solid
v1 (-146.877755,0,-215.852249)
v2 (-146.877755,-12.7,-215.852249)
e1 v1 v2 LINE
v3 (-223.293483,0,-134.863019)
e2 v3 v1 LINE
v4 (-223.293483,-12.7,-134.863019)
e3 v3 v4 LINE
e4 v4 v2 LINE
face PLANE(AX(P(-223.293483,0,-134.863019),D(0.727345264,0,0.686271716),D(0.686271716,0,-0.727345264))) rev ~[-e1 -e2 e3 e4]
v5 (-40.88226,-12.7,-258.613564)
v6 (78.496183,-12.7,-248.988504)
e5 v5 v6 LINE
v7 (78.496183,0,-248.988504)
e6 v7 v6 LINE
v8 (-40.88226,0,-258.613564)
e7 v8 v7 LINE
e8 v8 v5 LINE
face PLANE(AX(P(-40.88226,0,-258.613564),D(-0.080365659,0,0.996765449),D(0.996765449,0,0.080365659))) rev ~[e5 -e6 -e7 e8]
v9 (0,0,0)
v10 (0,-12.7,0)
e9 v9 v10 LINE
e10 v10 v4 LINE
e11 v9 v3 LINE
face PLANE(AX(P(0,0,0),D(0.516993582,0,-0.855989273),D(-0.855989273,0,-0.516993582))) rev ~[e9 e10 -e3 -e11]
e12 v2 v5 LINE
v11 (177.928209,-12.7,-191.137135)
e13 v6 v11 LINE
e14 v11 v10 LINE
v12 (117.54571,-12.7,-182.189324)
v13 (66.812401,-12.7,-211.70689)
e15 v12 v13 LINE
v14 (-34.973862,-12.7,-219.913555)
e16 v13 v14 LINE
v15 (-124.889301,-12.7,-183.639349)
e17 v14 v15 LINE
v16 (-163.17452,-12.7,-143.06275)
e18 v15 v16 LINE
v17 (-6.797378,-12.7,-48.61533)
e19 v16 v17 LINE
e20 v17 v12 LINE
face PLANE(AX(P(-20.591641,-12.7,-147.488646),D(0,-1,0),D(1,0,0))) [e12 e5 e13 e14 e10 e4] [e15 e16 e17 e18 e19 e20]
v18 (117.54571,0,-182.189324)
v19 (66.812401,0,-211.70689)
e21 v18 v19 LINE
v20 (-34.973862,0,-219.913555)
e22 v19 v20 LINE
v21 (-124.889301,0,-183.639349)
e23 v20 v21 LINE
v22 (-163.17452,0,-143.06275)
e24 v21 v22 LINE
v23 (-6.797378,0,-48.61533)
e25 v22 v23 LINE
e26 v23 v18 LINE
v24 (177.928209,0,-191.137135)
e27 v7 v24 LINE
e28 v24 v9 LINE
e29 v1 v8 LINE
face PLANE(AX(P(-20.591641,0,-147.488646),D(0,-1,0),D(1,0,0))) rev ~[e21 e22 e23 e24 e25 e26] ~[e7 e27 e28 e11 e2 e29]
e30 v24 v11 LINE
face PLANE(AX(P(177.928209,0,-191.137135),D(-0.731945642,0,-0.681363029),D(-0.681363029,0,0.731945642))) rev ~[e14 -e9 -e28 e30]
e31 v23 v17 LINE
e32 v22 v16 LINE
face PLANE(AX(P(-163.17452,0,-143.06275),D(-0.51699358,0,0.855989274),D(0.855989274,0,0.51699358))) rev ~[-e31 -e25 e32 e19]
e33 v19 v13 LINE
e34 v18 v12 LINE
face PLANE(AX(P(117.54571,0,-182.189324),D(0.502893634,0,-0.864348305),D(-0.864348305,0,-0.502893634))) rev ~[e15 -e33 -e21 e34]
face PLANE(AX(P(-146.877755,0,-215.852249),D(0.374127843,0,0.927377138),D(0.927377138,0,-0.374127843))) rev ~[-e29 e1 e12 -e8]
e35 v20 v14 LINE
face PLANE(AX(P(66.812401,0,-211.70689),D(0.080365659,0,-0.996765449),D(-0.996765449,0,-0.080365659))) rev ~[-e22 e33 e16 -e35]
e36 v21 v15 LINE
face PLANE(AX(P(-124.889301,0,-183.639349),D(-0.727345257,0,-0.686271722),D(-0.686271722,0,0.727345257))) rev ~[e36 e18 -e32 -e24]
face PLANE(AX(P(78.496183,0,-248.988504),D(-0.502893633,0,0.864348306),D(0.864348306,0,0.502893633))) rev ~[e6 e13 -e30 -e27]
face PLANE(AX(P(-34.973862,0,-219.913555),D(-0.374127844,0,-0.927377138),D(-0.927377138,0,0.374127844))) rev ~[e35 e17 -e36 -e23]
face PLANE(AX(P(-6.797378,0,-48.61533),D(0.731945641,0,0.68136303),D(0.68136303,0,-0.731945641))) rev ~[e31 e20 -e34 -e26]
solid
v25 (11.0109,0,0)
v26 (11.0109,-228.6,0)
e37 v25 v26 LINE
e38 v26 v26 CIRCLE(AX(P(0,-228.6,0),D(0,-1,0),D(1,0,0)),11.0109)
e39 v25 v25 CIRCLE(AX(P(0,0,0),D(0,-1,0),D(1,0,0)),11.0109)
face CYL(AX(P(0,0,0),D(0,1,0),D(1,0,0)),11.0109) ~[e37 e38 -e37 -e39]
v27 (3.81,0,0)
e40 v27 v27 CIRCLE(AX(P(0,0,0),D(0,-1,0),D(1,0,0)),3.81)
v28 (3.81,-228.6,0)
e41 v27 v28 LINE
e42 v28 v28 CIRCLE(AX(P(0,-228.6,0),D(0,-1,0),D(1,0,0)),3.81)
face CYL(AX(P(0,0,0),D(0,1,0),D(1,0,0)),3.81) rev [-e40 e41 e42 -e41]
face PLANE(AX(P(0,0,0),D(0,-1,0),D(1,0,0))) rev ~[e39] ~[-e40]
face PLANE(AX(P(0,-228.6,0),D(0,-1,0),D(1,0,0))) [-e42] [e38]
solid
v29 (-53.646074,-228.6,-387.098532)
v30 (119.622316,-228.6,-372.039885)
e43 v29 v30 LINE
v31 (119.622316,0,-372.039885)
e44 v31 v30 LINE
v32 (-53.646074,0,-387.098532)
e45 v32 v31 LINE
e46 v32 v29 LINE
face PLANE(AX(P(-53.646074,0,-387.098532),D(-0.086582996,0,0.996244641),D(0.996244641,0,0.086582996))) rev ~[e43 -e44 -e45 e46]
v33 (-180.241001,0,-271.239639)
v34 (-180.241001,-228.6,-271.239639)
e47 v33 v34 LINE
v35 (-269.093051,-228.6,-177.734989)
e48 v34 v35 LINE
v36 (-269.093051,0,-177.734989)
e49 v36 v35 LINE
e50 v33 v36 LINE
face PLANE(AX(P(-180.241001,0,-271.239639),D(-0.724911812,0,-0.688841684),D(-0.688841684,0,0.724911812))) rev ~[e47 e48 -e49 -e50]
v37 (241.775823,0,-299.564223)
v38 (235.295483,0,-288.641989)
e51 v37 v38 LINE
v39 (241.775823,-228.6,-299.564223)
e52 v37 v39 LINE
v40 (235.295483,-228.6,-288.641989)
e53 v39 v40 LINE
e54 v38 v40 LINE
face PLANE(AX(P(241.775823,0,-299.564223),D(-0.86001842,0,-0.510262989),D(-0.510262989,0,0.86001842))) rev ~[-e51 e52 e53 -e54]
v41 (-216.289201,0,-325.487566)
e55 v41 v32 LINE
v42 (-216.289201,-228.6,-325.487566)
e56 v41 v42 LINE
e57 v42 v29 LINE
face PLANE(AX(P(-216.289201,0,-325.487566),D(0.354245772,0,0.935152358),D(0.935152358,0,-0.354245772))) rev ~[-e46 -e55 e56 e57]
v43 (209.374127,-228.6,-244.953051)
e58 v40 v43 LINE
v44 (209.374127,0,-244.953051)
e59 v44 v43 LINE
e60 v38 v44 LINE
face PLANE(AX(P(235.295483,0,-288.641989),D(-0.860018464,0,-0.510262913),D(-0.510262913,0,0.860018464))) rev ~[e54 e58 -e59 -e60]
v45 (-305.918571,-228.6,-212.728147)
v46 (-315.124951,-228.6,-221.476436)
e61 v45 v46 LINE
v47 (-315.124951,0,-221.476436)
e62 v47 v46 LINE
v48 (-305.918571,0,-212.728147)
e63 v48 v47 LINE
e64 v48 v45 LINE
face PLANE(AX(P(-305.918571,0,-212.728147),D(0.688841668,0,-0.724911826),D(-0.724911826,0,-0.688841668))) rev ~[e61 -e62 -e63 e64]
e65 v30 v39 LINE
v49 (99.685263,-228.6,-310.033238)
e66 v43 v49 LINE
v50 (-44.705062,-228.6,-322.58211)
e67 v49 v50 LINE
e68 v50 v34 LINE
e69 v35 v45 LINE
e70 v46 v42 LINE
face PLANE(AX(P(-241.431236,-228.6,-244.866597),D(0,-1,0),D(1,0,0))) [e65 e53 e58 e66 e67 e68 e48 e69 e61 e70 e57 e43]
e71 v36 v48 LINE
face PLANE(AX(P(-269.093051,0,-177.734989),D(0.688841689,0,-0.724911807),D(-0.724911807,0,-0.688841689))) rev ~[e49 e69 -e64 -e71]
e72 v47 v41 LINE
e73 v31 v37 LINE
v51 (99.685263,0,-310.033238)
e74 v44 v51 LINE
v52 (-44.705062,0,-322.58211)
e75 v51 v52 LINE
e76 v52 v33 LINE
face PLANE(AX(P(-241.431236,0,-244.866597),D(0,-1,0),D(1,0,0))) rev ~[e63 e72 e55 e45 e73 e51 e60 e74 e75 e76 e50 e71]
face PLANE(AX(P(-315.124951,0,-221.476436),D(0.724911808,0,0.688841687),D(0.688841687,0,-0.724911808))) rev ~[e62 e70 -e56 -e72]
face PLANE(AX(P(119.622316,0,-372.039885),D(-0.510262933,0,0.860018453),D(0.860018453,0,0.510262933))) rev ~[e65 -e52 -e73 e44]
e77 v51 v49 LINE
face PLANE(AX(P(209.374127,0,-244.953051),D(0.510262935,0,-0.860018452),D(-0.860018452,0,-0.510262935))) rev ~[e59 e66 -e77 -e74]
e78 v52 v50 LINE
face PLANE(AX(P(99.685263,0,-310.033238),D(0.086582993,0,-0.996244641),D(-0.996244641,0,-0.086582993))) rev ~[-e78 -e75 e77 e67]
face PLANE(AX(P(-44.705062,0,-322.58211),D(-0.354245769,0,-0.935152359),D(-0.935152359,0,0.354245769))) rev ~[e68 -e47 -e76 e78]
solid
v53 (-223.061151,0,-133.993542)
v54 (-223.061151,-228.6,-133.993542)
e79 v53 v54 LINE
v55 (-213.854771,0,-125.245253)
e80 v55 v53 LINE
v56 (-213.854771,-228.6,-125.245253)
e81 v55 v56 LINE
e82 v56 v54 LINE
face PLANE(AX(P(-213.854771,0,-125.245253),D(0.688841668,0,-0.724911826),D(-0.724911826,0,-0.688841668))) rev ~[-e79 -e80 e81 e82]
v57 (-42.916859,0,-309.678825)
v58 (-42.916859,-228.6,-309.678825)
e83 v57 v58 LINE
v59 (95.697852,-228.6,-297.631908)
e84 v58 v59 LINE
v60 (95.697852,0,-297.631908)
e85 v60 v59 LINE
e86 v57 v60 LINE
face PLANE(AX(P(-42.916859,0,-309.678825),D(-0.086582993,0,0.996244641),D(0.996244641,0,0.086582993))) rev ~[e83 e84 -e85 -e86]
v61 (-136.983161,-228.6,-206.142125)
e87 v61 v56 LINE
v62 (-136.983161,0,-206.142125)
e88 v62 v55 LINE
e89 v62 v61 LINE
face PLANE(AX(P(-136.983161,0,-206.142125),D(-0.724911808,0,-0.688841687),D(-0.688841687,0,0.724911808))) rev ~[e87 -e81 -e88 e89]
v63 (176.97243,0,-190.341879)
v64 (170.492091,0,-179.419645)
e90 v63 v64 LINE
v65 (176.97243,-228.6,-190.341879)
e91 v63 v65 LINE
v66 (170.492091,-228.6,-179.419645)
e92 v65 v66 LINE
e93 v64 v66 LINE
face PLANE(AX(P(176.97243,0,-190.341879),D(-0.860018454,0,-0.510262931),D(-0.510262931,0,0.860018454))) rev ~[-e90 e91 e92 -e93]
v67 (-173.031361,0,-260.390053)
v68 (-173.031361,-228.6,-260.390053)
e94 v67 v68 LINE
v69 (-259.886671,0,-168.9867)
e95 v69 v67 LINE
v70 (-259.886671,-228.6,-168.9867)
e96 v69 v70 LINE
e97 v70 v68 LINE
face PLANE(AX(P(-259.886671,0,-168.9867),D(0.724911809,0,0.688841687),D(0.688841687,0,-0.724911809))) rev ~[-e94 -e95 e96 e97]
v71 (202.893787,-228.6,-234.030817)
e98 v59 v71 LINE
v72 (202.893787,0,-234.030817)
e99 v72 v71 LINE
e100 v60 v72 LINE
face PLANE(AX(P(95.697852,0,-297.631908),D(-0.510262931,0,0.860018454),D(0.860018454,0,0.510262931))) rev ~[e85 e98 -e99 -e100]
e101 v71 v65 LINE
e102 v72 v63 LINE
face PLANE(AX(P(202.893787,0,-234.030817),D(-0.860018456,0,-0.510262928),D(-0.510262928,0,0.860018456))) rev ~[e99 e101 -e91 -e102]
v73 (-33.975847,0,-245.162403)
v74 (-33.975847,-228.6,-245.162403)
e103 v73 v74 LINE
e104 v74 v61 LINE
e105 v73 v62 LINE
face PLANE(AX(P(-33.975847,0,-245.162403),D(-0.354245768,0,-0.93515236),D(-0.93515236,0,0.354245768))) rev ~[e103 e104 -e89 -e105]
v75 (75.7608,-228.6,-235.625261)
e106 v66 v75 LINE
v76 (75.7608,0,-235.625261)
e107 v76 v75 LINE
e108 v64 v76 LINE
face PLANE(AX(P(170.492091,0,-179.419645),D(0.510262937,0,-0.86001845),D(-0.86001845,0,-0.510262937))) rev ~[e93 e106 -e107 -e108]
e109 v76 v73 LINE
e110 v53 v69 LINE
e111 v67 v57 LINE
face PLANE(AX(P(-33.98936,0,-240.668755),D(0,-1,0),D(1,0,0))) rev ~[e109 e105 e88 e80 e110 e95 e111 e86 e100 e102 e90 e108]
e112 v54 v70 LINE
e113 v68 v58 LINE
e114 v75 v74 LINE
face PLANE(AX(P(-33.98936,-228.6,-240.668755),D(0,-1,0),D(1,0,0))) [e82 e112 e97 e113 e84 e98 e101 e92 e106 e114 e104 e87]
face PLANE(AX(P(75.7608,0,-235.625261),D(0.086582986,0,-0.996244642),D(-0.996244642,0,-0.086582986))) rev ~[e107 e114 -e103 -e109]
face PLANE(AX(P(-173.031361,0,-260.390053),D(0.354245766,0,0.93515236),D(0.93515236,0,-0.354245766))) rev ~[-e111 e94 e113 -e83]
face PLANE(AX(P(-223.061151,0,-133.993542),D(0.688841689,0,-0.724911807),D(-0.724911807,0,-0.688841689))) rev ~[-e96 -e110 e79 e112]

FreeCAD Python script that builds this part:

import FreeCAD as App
import Part
import Sketcher

V = App.Vector
Q = App.Units.Quantity

doc = App.newDocument("Part")
body = doc.addObject("PartDesign::Body", "Body")
body.AllowCompound = True

sketch1 = body.newObject("Sketcher::SketchObject", "Sketch")
sketch1.AttachmentSupport = (doc.getObject("XZ_Plane"), [""])
sketch1.MapMode = "FlatFace"
sketch1.addGeometry(Part.Circle(V(0, 0, 0), V(0, 0, 1), 11.0109), False)
sketch1.addGeometry(Part.Circle(V(0, 0, 0), V(0, 0, 1), 3.81), False)
sketch1.addGeometry(Part.LineSegment(V(202.893787, -234.030817, 0), V(176.97243, -190.341879, 0)), False)
sketch1.addGeometry(Part.LineSegment(V(176.97243, -190.341879, 0), V(170.492091, -179.419645, 0)), False)
sketch1.addGeometry(Part.LineSegment(V(170.492091, -179.419645, 0), V(75.7608, -235.625261, 0)), False)
sketch1.addGeometry(Part.LineSegment(V(75.7608, -235.625261, 0), V(-33.975847, -245.162403, 0)), False)
sketch1.addGeometry(Part.LineSegment(V(-33.975847, -245.162403, 0), V(-136.983161, -206.142125, 0)), False)
sketch1.addGeometry(Part.LineSegment(V(-136.983161, -206.142125, 0), V(-213.854771, -125.245253, 0)), False)
sketch1.addGeometry(Part.LineSegment(V(-213.854771, -125.245253, 0), V(-223.061151, -133.993542, 0)), False)
sketch1.addGeometry(Part.LineSegment(V(-223.061151, -133.993542, 0), V(-259.886671, -168.9867, 0)), False)
sketch1.addGeometry(Part.LineSegment(V(-259.886671, -168.9867, 0), V(-173.031361, -260.390053, 0)), False)
sketch1.addGeometry(Part.LineSegment(V(-173.031361, -260.390053, 0), V(-42.916859, -309.678825, 0)), False)
sketch1.addGeometry(Part.LineSegment(V(-42.916859, -309.678825, 0), V(95.697852, -297.631908, 0)), False)
sketch1.addGeometry(Part.LineSegment(V(95.697852, -297.631908, 0), V(202.893787, -234.030817, 0)), False)
sketch1.addConstraint(Sketcher.Constraint("Coincident", 2, 2, 3, 1))
sketch1.addConstraint(Sketcher.Constraint("Coincident", 3, 2, 4, 1))
sketch1.addConstraint(Sketcher.Constraint("Coincident", 4, 2, 5, 1))
sketch1.addConstraint(Sketcher.Constraint("Coincident", 5, 2, 6, 1))
sketch1.addConstraint(Sketcher.Constraint("Coincident", 6, 2, 7, 1))
sketch1.addConstraint(Sketcher.Constraint("Coincident", 7, 2, 8, 1))
sketch1.addConstraint(Sketcher.Constraint("Coincident", 8, 2, 9, 1))
sketch1.addConstraint(Sketcher.Constraint("Coincident", 9, 2, 10, 1))
sketch1.addConstraint(Sketcher.Constraint("Coincident", 10, 2, 11, 1))
sketch1.addConstraint(Sketcher.Constraint("Coincident", 11, 2, 12, 1))
sketch1.addConstraint(Sketcher.Constraint("Coincident", 12, 2, 13, 1))
sketch1.addConstraint(Sketcher.Constraint("Coincident", 13, 2, 2, 1))
sketch1.addConstraint(Sketcher.Constraint("Coincident", 0, 3, -1, 1))
sketch1.addConstraint(Sketcher.Constraint("Coincident", 1, 3, -1, 1))
sketch1.addConstraint(Sketcher.Constraint("Parallel", 2, 3))
sketch1.addConstraint(Sketcher.Constraint("Perpendicular", 3, 4))
sketch1.addConstraint(Sketcher.Constraint("Perpendicular", 7, 8))
sketch1.addConstraint(Sketcher.Constraint("Parallel", 8, 9))
sketch1.addConstraint(Sketcher.Constraint("Perpendicular", 9, 10))
sketch1.addConstraint(Sketcher.Constraint("Parallel", 6, 11))
sketch1.addConstraint(Sketcher.Constraint("Parallel", 5, 12))
sketch1.addConstraint(Sketcher.Constraint("Parallel", 4, 13))
sketch1.addConstraint(Sketcher.Constraint("Equal", 4, 5))
sketch1.addConstraint(Sketcher.Constraint("Equal", 5, 6))
sketch1.addConstraint(Sketcher.Constraint("Equal", 3, 8))
sketch1.addConstraint(Sketcher.Constraint("Equal", 2, 9))
sketch1.addConstraint(Sketcher.Constraint("Equal", 11, 12))
sketch1.addConstraint(Sketcher.Constraint("Diameter", 1, Q("0.3 in")))
sketch1.addConstraint(Sketcher.Constraint("Distance", 2, Q("2 in")))
sketch1.addConstraint(Sketcher.Constraint("Diameter", 0, Q("0.867 in")))
sketch1.addConstraint(Sketcher.Constraint("Distance", 3, Q("0.5 in")))
sketch1.addConstraint(Sketcher.Constraint("Distance", 4, Q("110.150301 mm")))
sketch1.addConstraint(Sketcher.Constraint("DistanceX", -1, 1, 4, 2, Q("75.7608 mm")))
sketch1.addConstraint(Sketcher.Constraint("DistanceY", 9, 2, -1, 1, Q("168.9867 mm")))
sketch1.addConstraint(Sketcher.Constraint("DistanceX", 9, 2, 7, 2, Q("46.0319 mm")))
sketch1.addConstraint(Sketcher.Constraint("DistanceX", 10, 2, 6, 2, Q("36.0482 mm")))
sketch1.addConstraint(Sketcher.Constraint("DistanceY", 10, 2, 7, 2, Q("135.1448 mm")))
sketch1.addConstraint(Sketcher.Constraint("DistanceX", 6, 2, 11, 2, Q("94.066302 mm")))
sketch1.addConstraint(Sketcher.Constraint("DistanceY", 11, 2, 6, 2, Q("103.5367 mm")))
sketch1.addConstraint(Sketcher.Constraint("DistanceX", 5, 2, 12, 2, Q("129.673699 mm")))
pad1 = body.newObject("PartDesign::Pad", "Pad")
pad1.Profile = sketch1
pad1.Length = Q("9 in")
body2 = doc.addObject("PartDesign::Body", "Body001")

sketch2 = body2.newObject("Sketcher::SketchObject", "Sketch001")
sketch2.AttachmentSupport = (doc.getObject("XZ_Plane001"), [""])
sketch2.MapMode = "FlatFace"
sketch2.addGeometry(Part.LineSegment(V(-180.241001, -271.239639, 0), V(-269.093051, -177.734989, 0)), False)
sketch2.addGeometry(Part.LineSegment(V(-269.093051, -177.734989, 0), V(-305.918571, -212.728147, 0)), False)
sketch2.addGeometry(Part.LineSegment(V(-305.918571, -212.728147, 0), V(-315.124951, -221.476436, 0)), False)
sketch2.addGeometry(Part.LineSegment(V(-315.124951, -221.476436, 0), V(-216.289201, -325.487566, 0)), False)
sketch2.addGeometry(Part.LineSegment(V(-216.289201, -325.487566, 0), V(-53.646074, -387.098532, 0)), False)
sketch2.addGeometry(Part.LineSegment(V(-53.646074, -387.098532, 0), V(119.622316, -372.039885, 0)), False)
sketch2.addGeometry(Part.LineSegment(V(119.622316, -372.039885, 0), V(241.775823, -299.564223, 0)), False)
sketch2.addGeometry(Part.LineSegment(V(241.775823, -299.564223, 0), V(235.295483, -288.641989, 0)), False)
sketch2.addGeometry(Part.LineSegment(V(235.295483, -288.641989, 0), V(209.374127, -244.953051, 0)), False)
sketch2.addGeometry(Part.LineSegment(V(209.374127, -244.953051, 0), V(99.685263, -310.033238, 0)), False)
sketch2.addGeometry(Part.LineSegment(V(99.685263, -310.033238, 0), V(-44.705062, -322.58211, 0)), False)
sketch2.addGeometry(Part.LineSegment(V(-44.705062, -322.58211, 0), V(-180.241001, -271.239639, 0)), False)
sketch2.addConstraint(Sketcher.Constraint("Coincident", 0, 2, 1, 1))
sketch2.addConstraint(Sketcher.Constraint("Coincident", 1, 2, 2, 1))
sketch2.addConstraint(Sketcher.Constraint("Coincident", 2, 2, 3, 1))
sketch2.addConstraint(Sketcher.Constraint("Coincident", 3, 2, 4, 1))
sketch2.addConstraint(Sketcher.Constraint("Coincident", 4, 2, 5, 1))
sketch2.addConstraint(Sketcher.Constraint("Coincident", 5, 2, 6, 1))
sketch2.addConstraint(Sketcher.Constraint("Coincident", 6, 2, 7, 1))
sketch2.addConstraint(Sketcher.Constraint("Coincident", 7, 2, 8, 1))
sketch2.addConstraint(Sketcher.Constraint("Coincident", 8, 2, 9, 1))
sketch2.addConstraint(Sketcher.Constraint("Coincident", 9, 2, 10, 1))
sketch2.addConstraint(Sketcher.Constraint("Coincident", 10, 2, 11, 1))
sketch2.addConstraint(Sketcher.Constraint("Coincident", 11, 2, 0, 1))
sketch2.addConstraint(Sketcher.Constraint("Perpendicular", 0, 1))
sketch2.addConstraint(Sketcher.Constraint("Parallel", 1, 2))
sketch2.addConstraint(Sketcher.Constraint("Perpendicular", 2, 3))
sketch2.addConstraint(Sketcher.Constraint("Perpendicular", 6, 7))
sketch2.addConstraint(Sketcher.Constraint("Parallel", 7, 8))
sketch2.addConstraint(Sketcher.Constraint("Perpendicular", 8, 9))
sketch2.addConstraint(Sketcher.Constraint("Parallel", 5, 10))
sketch2.addConstraint(Sketcher.Constraint("Parallel", 4, 11))
sketch2.addConstraint(Sketcher.Constraint("Equal", 4, 5))
sketch2.addConstraint(Sketcher.Constraint("Equal", 2, 7))
sketch2.addConstraint(Sketcher.Constraint("Equal", 1, 8))
sketch2.addConstraint(Sketcher.Constraint("Equal", 10, 11))
sketch2.addConstraint(Sketcher.Constraint("Distance", 1, Q("2 in")))
sketch2.addConstraint(Sketcher.Constraint("Distance", 2, Q("0.5 in")))
sketch2.addConstraint(Sketcher.Constraint("DistanceX", 3, 2, -1, 1, Q("216.289201 mm")))
sketch2.addConstraint(Sketcher.Constraint("DistanceX", 11, 2, -1, 1, Q("180.241001 mm")))
sketch2.addConstraint(Sketcher.Constraint("DistanceX", 2, 2, 0, 2, Q("46.0319 mm")))
sketch2.addConstraint(Sketcher.Constraint("DistanceY", 7, 2, 0, 2, Q("110.907 mm")))
sketch2.addConstraint(Sketcher.Constraint("DistanceX", 4, 2, 8, 2, Q("263.020201 mm")))
sketch2.addConstraint(Sketcher.Constraint("Distance", 0, Q("128.987621 mm")))
sketch2.addConstraint(Sketcher.Constraint("DistanceY", 0, 2, -1, 1, Q("177.734989 mm")))
sketch2.addConstraint(Sketcher.Constraint("DistanceY", 4, 2, -1, 1, Q("387.098532 mm")))
sketch2.addConstraint(Sketcher.Constraint("DistanceY", 8, 2, -1, 1, Q("244.953051 mm")))
sketch2.addConstraint(Sketcher.Constraint("DistanceY", 9, 2, -1, 1, Q("310.033238 mm")))
pad2 = body2.newObject("PartDesign::Pad", "Pad001")
pad2.Profile = sketch2
pad2.Length = Q("9 in")
body3 = doc.addObject("PartDesign::Body", "Body002")

sketch3 = body3.newObject("Sketcher::SketchObject", "Sketch002")
sketch3.AttachmentSupport = (doc.getObject("XZ_Plane002"), [""])
sketch3.MapMode = "FlatFace"
sketch3.addGeometry(Part.LineSegment(V(177.928209, -191.137135, 0), V(0, 0, 0)), False)
sketch3.addGeometry(Part.LineSegment(V(0, 0, 0), V(-223.293483, -134.863019, 0)), False)
sketch3.addGeometry(Part.LineSegment(V(-223.293483, -134.863019, 0), V(-146.877755, -215.852249, 0)), False)
sketch3.addGeometry(Part.LineSegment(V(-146.877755, -215.852249, 0), V(-40.88226, -258.613564, 0)), False)
sketch3.addGeometry(Part.LineSegment(V(-40.88226, -258.613564, 0), V(78.496183, -248.988504, 0)), False)
sketch3.addGeometry(Part.LineSegment(V(78.496183, -248.988504, 0), V(177.928209, -191.137135, 0)), False)
sketch3.addGeometry(Part.LineSegment(V(-163.17452, -143.06275, 0), V(-6.797378, -48.61533, 0)), False)
sketch3.addGeometry(Part.LineSegment(V(-6.797378, -48.61533, 0), V(117.54571, -182.189324, 0)), False)
sketch3.addGeometry(Part.LineSegment(V(117.54571, -182.189324, 0), V(66.812401, -211.70689, 0)), False)
sketch3.addGeometry(Part.LineSegment(V(66.812401, -211.70689, 0), V(-34.973862, -219.913555, 0)), False)
sketch3.addGeometry(Part.LineSegment(V(-34.973862, -219.913555, 0), V(-124.889301, -183.639349, 0)), False)
sketch3.addGeometry(Part.LineSegment(V(-124.889301, -183.639349, 0), V(-163.17452, -143.06275, 0)), False)
sketch3.addConstraint(Sketcher.Constraint("Coincident", 0, 2, 1, 1))
sketch3.addConstraint(Sketcher.Constraint("Coincident", 1, 2, 2, 1))
sketch3.addConstraint(Sketcher.Constraint("Coincident", 2, 2, 3, 1))
sketch3.addConstraint(Sketcher.Constraint("Coincident", 3, 2, 4, 1))
sketch3.addConstraint(Sketcher.Constraint("Coincident", 4, 2, 5, 1))
sketch3.addConstraint(Sketcher.Constraint("Coincident", 5, 2, 0, 1))
sketch3.addConstraint(Sketcher.Constraint("Coincident", 6, 2, 7, 1))
sketch3.addConstraint(Sketcher.Constraint("Coincident", 7, 2, 8, 1))
sketch3.addConstraint(Sketcher.Constraint("Coincident", 8, 2, 9, 1))
sketch3.addConstraint(Sketcher.Constraint("Coincident", 9, 2, 10, 1))
sketch3.addConstraint(Sketcher.Constraint("Coincident", 10, 2, 11, 1))
sketch3.addConstraint(Sketcher.Constraint("Coincident", 11, 2, 6, 1))
sketch3.addConstraint(Sketcher.Constraint("Coincident", 0, 2, -1, 1))
sketch3.addConstraint(Sketcher.Constraint("Parallel", 1, 6))
sketch3.addConstraint(Sketcher.Constraint("Parallel", 0, 7))
sketch3.addConstraint(Sketcher.Constraint("Parallel", 5, 8))
sketch3.addConstraint(Sketcher.Constraint("Parallel", 4, 9))
sketch3.addConstraint(Sketcher.Constraint("Parallel", 3, 10))
sketch3.addConstraint(Sketcher.Constraint("Parallel", 2, 11))
sketch3.addConstraint(Sketcher.Constraint("DistanceX", -1, 1, 8, 2, Q("66.812401 mm")))
sketch3.addConstraint(Sketcher.Constraint("DistanceX", 10, 2, -1, 1, Q("124.889301 mm")))
sketch3.addConstraint(Sketcher.Constraint("DistanceX", 7, 2, 5, 2, Q("60.382499 mm")))
sketch3.addConstraint(Sketcher.Constraint("DistanceX", 3, 2, 9, 2, Q("5.908398 mm")))
sketch3.addConstraint(Sketcher.Constraint("DistanceY", 2, 2, 10, 2, Q("32.2129 mm")))
sketch3.addConstraint(Sketcher.Constraint("DistanceY", 10, 2, 11, 2, Q("40.576599 mm")))
sketch3.addConstraint(Sketcher.Constraint("Distance", 1, Q("260.860142 mm")))
sketch3.addConstraint(Sketcher.Constraint("Distance", 4, Q("119.765832 mm")))
sketch3.addConstraint(Sketcher.Constraint("Distance", 5, Q("115.036988 mm")))
sketch3.addConstraint(Sketcher.Constraint("Distance", 11, Q("55.78726 mm")))
sketch3.addConstraint(Sketcher.Constraint("DistanceY", 1, 2, -1, 1, Q("134.863019 mm")))
sketch3.addConstraint(Sketcher.Constraint("DistanceY", 2, 2, -1, 1, Q("215.852249 mm")))
sketch3.addConstraint(Sketcher.Constraint("DistanceX", 3, 2, -1, 1, Q("40.88226 mm")))
sketch3.addConstraint(Sketcher.Constraint("DistanceX", -1, 1, 5, 2, Q("177.928209 mm")))
sketch3.addConstraint(Sketcher.Constraint("DistanceY", 6, 2, -1, 1, Q("48.61533 mm")))
sketch3.addConstraint(Sketcher.Constraint("DistanceY", 8, 2, -1, 1, Q("211.70689 mm")))
pad3 = body3.newObject("PartDesign::Pad", "Pad002")
pad3.Profile = sketch3
pad3.Length = Q("0.5 in")

doc.recompute()
